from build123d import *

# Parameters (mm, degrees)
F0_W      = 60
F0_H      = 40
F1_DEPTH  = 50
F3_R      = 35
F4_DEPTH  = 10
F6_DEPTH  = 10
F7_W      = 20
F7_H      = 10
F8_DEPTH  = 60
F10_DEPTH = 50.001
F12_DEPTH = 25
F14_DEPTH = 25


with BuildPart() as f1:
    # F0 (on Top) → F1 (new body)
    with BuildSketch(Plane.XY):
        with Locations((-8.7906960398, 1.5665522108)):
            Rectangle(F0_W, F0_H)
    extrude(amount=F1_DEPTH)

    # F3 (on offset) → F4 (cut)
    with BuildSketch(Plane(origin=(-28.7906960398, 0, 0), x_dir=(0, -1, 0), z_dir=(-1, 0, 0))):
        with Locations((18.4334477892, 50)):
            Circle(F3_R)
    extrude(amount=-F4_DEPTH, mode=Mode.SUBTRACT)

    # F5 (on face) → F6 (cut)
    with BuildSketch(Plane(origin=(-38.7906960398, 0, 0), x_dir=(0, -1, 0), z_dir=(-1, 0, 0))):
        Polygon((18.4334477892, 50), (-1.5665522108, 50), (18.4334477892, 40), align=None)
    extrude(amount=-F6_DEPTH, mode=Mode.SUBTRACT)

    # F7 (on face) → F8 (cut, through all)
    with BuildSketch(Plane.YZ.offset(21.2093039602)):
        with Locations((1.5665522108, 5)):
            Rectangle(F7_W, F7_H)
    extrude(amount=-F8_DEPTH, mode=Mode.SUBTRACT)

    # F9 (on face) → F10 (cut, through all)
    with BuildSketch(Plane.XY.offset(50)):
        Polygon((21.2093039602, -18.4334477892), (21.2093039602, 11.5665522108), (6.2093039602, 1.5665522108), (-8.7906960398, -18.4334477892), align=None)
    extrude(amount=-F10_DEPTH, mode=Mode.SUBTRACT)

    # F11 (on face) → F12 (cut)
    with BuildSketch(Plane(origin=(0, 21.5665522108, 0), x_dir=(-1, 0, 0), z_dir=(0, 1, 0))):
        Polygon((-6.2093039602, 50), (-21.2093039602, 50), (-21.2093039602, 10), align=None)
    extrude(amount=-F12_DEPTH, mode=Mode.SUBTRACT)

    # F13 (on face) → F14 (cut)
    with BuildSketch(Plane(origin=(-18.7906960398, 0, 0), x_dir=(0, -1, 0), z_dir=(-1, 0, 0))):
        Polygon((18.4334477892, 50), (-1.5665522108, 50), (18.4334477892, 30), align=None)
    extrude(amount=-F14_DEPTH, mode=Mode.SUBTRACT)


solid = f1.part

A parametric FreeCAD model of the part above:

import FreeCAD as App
import Part
import Sketcher

V = App.Vector

doc = App.newDocument("Part")
body = doc.addObject("PartDesign::Body", "Body")

# Sketch on XY plane
sketch1 = body.newObject("Sketcher::SketchObject", "Sketch")
sketch1.AttachmentSupport = (doc.getObject("XY_Plane"), [""])
sketch1.MapMode = "FlatFace"
sketch1.addGeometry([
    Part.LineSegment(V(-39, 22, 0), V(-39, -18, 0)),
    Part.LineSegment(V(-39, -18, 0), V(21, -18, 0)),
    Part.LineSegment(V(21, -18, 0), V(21, 22, 0)),
    Part.LineSegment(V(21, 22, 0), V(-39, 22, 0)),
], False)
sketch1.addConstraint([
    Sketcher.Constraint("Coincident", 0, 2, 1, 1),
    Sketcher.Constraint("Coincident", 1, 2, 2, 1),
    Sketcher.Constraint("Coincident", 2, 2, 3, 1),
    Sketcher.Constraint("Coincident", 3, 2, 0, 1),
    Sketcher.Constraint("Vertical", 0),
    Sketcher.Constraint("Horizontal", 1),
    Sketcher.Constraint("Vertical", 2),
    Sketcher.Constraint("Horizontal", 3),
    Sketcher.Constraint("DistanceX", 1, 1, 1, 2, 60.0),
    Sketcher.Constraint("DistanceY", 0, 2, 0, 1, 40.0),
    Sketcher.Constraint("DistanceX", 0, 2, -1, 1, 38.790696),
    Sketcher.Constraint("DistanceY", 0, 2, -1, 1, 18.433448),
])
pad1 = body.newObject("PartDesign::Pad", "Pad")
pad1.Profile = sketch1
pad1.Length = 50

# Sketch on YZ plane
sketch2 = body.newObject("Sketcher::SketchObject", "Sketch001")
sketch2.AttachmentSupport = (doc.getObject("YZ_Plane"), [""])
sketch2.MapMode = "FlatFace"
sketch2.AttachmentOffset = App.Placement(V(0, 0, -28.790696), App.Rotation())
sketch2.addGeometry(Part.Circle(V(-18, 50, 0), V(0, 0, 1), 35), False)
sketch2.addConstraint([
    Sketcher.Constraint("Diameter", 0, 70.0),
    Sketcher.Constraint("DistanceY", -1, 1, 0, 3, 50.0),
    Sketcher.Constraint("DistanceX", 0, 3, -1, 1, 18.433448),
])
pocket1 = body.newObject("PartDesign::Pocket", "Pocket")
pocket1.Profile = sketch2
pocket1.Length = 10
pocket1.Reversed = True

# Sketch on YZ plane
sketch3 = body.newObject("Sketcher::SketchObject", "Sketch002")
sketch3.AttachmentSupport = (doc.getObject("YZ_Plane"), [""])
sketch3.MapMode = "FlatFace"
sketch3.AttachmentOffset = App.Placement(V(0, 0, -38.790696), App.Rotation())
sketch3.addGeometry([
    Part.LineSegment(V(-18, 50, 0), V(2, 50, 0)),
    Part.LineSegment(V(2, 50, 0), V(-18, 40, 0)),
    Part.LineSegment(V(-18, 40, 0), V(-18, 50, 0)),
], False)
sketch3.addConstraint([
    Sketcher.Constraint("Coincident", 0, 2, 1, 1),
    Sketcher.Constraint("Coincident", 1, 2, 2, 1),
    Sketcher.Constraint("Coincident", 2, 2, 0, 1),
    Sketcher.Constraint("Horizontal", 0),
    Sketcher.Constraint("Vertical", 2),
    Sketcher.Constraint("DistanceX", 0, 1, 0, 2, 20.0),
    Sketcher.Constraint("DistanceY", 2, 1, 2, 2, 10.0),
    Sketcher.Constraint("DistanceY", -1, 1, 0, 2, 50.0),
    Sketcher.Constraint("DistanceX", -1, 1, 0, 2, 1.566552),
])
pocket2 = body.newObject("PartDesign::Pocket", "Pocket001")
pocket2.Profile = sketch3
pocket2.Length = 10
pocket2.Reversed = True

# Sketch on YZ plane
sketch4 = body.newObject("Sketcher::SketchObject", "Sketch003")
sketch4.AttachmentSupport = (doc.getObject("YZ_Plane"), [""])
sketch4.MapMode = "FlatFace"
sketch4.AttachmentOffset = App.Placement(V(0, 0, 21.209304), App.Rotation())
sketch4.addGeometry([
    Part.LineSegment(V(-8, 10, 0), V(-8, 0, 0)),
    Part.LineSegment(V(-8, 0, 0), V(12, 0, 0)),
    Part.LineSegment(V(12, 0, 0), V(12, 10, 0)),
    Part.LineSegment(V(12, 10, 0), V(-8, 10, 0)),
], False)
sketch4.addConstraint([
    Sketcher.Constraint("Coincident", 0, 2, 1, 1),
    Sketcher.Constraint("Coincident", 1, 2, 2, 1),
    Sketcher.Constraint("Coincident", 2, 2, 3, 1),
    Sketcher.Constraint("Coincident", 3, 2, 0, 1),
    Sketcher.Constraint("Vertical", 0),
    Sketcher.Constraint("Horizontal", 1),
    Sketcher.Constraint("Vertical", 2),
    Sketcher.Constraint("Horizontal", 3),
    Sketcher.Constraint("PointOnObject", 0, 2, -1),
    Sketcher.Constraint("DistanceX", 1, 1, 1, 2, 20.0),
    Sketcher.Constraint("DistanceY", 0, 2, 0, 1, 10.0),
    Sketcher.Constraint("DistanceX", 0, 2, -1, 1, 8.433448),
])
pocket3 = body.newObject("PartDesign::Pocket", "Pocket002")
pocket3.Profile = sketch4
pocket3.Type = "ThroughAll"

# Sketch on XY plane
sketch5 = body.newObject("Sketcher::SketchObject", "Sketch004")
sketch5.AttachmentSupport = (doc.getObject("XY_Plane"), [""])
sketch5.MapMode = "FlatFace"
sketch5.AttachmentOffset = App.Placement(V(0, 0, 50), App.Rotation())
sketch5.addGeometry([
    Part.LineSegment(V(21, -18, 0), V(21, 12, 0)),
    Part.LineSegment(V(21, 12, 0), V(6, 2, 0)),
    Part.LineSegment(V(6, 2, 0), V(-9, -18, 0)),
    Part.LineSegment(V(-9, -18, 0), V(21, -18, 0)),
], False)
sketch5.addConstraint([
    Sketcher.Constraint("Coincident", 0, 2, 1, 1),
    Sketcher.Constraint("Coincident", 1, 2, 2, 1),
    Sketcher.Constraint("Coincident", 2, 2, 3, 1),
    Sketcher.Constraint("Coincident", 3, 2, 0, 1),
    Sketcher.Constraint("Vertical", 0),
    Sketcher.Constraint("Horizontal", 3),
    Sketcher.Constraint("Equal", 3, 0),
    Sketcher.Constraint("DistanceX", 3, 1, 3, 2, 30.0),
    Sketcher.Constraint("Distance", 2, 25.0),
    Sketcher.Constraint("DistanceX", 1, 2, 0, 2, 15.0),
    Sketcher.Constraint("DistanceX", -1, 1, 0, 2, 21.209304),
    Sketcher.Constraint("DistanceY", -1, 1, 0, 2, 11.566552),
])
pocket4 = body.newObject("PartDesign::Pocket", "Pocket003")
pocket4.Profile = sketch5
pocket4.Type = "ThroughAll"

# Sketch on XZ plane
sketch6 = body.newObject("Sketcher::SketchObject", "Sketch005")
sketch6.AttachmentSupport = (doc.getObject("XZ_Plane"), [""])
sketch6.MapMode = "FlatFace"
sketch6.AttachmentOffset = App.Placement(V(0, 0, -21.566552), App.Rotation())
sketch6.addGeometry([
    Part.LineSegment(V(6, 50, 0), V(21, 50, 0)),
    Part.LineSegment(V(21, 50, 0), V(21, 10, 0)),
    Part.LineSegment(V(21, 10, 0), V(6, 50, 0)),
], False)
sketch6.addConstraint([
    Sketcher.Constraint("Coincident", 0, 2, 1, 1),
    Sketcher.Constraint("Coincident", 1, 2, 2, 1),
    Sketcher.Constraint("Coincident", 2, 2, 0, 1),
    Sketcher.Constraint("Horizontal", 0),
    Sketcher.Constraint("Vertical", 1),
    Sketcher.Constraint("DistanceX", 0, 1, 0, 2, 15.0),
    Sketcher.Constraint("DistanceY", 1, 2, 1, 1, 40.0),
    Sketcher.Constraint("DistanceY", -1, 1, 0, 2, 50.0),
    Sketcher.Constraint("DistanceX", -1, 1, 0, 2, 21.209304),
])
pocket5 = body.newObject("PartDesign::Pocket", "Pocket004")
pocket5.Profile = sketch6
pocket5.Length = 25
pocket5.Reversed = True

# Sketch on YZ plane
sketch7 = body.newObject("Sketcher::SketchObject", "Sketch006")
sketch7.AttachmentSupport = (doc.getObject("YZ_Plane"), [""])
sketch7.MapMode = "FlatFace"
sketch7.AttachmentOffset = App.Placement(V(0, 0, -18.790696), App.Rotation())
sketch7.addGeometry([
    Part.LineSegment(V(-18, 50, 0), V(2, 50, 0)),
    Part.LineSegment(V(2, 50, 0), V(-18, 30, 0)),
    Part.LineSegment(V(-18, 30, 0), V(-18, 50, 0)),
], False)
sketch7.addConstraint([
    Sketcher.Constraint("Coincident", 0, 2, 1, 1),
    Sketcher.Constraint("Coincident", 1, 2, 2, 1),
    Sketcher.Constraint("Coincident", 2, 2, 0, 1),
    Sketcher.Constraint("Horizontal", 0),
    Sketcher.Constraint("Vertical", 2),
    Sketcher.Constraint("Equal", 0, 2),
    Sketcher.Constraint("DistanceX", 0, 1, 0, 2, 20.0),
    Sketcher.Constraint("DistanceY", -1, 1, 0, 2, 50.0),
    Sketcher.Constraint("DistanceX", -1, 1, 0, 2, 1.566552),
])
pocket6 = body.newObject("PartDesign::Pocket", "Pocket005")
pocket6.Profile = sketch7
pocket6.Length = 25
pocket6.Reversed = True

doc.recompute()
